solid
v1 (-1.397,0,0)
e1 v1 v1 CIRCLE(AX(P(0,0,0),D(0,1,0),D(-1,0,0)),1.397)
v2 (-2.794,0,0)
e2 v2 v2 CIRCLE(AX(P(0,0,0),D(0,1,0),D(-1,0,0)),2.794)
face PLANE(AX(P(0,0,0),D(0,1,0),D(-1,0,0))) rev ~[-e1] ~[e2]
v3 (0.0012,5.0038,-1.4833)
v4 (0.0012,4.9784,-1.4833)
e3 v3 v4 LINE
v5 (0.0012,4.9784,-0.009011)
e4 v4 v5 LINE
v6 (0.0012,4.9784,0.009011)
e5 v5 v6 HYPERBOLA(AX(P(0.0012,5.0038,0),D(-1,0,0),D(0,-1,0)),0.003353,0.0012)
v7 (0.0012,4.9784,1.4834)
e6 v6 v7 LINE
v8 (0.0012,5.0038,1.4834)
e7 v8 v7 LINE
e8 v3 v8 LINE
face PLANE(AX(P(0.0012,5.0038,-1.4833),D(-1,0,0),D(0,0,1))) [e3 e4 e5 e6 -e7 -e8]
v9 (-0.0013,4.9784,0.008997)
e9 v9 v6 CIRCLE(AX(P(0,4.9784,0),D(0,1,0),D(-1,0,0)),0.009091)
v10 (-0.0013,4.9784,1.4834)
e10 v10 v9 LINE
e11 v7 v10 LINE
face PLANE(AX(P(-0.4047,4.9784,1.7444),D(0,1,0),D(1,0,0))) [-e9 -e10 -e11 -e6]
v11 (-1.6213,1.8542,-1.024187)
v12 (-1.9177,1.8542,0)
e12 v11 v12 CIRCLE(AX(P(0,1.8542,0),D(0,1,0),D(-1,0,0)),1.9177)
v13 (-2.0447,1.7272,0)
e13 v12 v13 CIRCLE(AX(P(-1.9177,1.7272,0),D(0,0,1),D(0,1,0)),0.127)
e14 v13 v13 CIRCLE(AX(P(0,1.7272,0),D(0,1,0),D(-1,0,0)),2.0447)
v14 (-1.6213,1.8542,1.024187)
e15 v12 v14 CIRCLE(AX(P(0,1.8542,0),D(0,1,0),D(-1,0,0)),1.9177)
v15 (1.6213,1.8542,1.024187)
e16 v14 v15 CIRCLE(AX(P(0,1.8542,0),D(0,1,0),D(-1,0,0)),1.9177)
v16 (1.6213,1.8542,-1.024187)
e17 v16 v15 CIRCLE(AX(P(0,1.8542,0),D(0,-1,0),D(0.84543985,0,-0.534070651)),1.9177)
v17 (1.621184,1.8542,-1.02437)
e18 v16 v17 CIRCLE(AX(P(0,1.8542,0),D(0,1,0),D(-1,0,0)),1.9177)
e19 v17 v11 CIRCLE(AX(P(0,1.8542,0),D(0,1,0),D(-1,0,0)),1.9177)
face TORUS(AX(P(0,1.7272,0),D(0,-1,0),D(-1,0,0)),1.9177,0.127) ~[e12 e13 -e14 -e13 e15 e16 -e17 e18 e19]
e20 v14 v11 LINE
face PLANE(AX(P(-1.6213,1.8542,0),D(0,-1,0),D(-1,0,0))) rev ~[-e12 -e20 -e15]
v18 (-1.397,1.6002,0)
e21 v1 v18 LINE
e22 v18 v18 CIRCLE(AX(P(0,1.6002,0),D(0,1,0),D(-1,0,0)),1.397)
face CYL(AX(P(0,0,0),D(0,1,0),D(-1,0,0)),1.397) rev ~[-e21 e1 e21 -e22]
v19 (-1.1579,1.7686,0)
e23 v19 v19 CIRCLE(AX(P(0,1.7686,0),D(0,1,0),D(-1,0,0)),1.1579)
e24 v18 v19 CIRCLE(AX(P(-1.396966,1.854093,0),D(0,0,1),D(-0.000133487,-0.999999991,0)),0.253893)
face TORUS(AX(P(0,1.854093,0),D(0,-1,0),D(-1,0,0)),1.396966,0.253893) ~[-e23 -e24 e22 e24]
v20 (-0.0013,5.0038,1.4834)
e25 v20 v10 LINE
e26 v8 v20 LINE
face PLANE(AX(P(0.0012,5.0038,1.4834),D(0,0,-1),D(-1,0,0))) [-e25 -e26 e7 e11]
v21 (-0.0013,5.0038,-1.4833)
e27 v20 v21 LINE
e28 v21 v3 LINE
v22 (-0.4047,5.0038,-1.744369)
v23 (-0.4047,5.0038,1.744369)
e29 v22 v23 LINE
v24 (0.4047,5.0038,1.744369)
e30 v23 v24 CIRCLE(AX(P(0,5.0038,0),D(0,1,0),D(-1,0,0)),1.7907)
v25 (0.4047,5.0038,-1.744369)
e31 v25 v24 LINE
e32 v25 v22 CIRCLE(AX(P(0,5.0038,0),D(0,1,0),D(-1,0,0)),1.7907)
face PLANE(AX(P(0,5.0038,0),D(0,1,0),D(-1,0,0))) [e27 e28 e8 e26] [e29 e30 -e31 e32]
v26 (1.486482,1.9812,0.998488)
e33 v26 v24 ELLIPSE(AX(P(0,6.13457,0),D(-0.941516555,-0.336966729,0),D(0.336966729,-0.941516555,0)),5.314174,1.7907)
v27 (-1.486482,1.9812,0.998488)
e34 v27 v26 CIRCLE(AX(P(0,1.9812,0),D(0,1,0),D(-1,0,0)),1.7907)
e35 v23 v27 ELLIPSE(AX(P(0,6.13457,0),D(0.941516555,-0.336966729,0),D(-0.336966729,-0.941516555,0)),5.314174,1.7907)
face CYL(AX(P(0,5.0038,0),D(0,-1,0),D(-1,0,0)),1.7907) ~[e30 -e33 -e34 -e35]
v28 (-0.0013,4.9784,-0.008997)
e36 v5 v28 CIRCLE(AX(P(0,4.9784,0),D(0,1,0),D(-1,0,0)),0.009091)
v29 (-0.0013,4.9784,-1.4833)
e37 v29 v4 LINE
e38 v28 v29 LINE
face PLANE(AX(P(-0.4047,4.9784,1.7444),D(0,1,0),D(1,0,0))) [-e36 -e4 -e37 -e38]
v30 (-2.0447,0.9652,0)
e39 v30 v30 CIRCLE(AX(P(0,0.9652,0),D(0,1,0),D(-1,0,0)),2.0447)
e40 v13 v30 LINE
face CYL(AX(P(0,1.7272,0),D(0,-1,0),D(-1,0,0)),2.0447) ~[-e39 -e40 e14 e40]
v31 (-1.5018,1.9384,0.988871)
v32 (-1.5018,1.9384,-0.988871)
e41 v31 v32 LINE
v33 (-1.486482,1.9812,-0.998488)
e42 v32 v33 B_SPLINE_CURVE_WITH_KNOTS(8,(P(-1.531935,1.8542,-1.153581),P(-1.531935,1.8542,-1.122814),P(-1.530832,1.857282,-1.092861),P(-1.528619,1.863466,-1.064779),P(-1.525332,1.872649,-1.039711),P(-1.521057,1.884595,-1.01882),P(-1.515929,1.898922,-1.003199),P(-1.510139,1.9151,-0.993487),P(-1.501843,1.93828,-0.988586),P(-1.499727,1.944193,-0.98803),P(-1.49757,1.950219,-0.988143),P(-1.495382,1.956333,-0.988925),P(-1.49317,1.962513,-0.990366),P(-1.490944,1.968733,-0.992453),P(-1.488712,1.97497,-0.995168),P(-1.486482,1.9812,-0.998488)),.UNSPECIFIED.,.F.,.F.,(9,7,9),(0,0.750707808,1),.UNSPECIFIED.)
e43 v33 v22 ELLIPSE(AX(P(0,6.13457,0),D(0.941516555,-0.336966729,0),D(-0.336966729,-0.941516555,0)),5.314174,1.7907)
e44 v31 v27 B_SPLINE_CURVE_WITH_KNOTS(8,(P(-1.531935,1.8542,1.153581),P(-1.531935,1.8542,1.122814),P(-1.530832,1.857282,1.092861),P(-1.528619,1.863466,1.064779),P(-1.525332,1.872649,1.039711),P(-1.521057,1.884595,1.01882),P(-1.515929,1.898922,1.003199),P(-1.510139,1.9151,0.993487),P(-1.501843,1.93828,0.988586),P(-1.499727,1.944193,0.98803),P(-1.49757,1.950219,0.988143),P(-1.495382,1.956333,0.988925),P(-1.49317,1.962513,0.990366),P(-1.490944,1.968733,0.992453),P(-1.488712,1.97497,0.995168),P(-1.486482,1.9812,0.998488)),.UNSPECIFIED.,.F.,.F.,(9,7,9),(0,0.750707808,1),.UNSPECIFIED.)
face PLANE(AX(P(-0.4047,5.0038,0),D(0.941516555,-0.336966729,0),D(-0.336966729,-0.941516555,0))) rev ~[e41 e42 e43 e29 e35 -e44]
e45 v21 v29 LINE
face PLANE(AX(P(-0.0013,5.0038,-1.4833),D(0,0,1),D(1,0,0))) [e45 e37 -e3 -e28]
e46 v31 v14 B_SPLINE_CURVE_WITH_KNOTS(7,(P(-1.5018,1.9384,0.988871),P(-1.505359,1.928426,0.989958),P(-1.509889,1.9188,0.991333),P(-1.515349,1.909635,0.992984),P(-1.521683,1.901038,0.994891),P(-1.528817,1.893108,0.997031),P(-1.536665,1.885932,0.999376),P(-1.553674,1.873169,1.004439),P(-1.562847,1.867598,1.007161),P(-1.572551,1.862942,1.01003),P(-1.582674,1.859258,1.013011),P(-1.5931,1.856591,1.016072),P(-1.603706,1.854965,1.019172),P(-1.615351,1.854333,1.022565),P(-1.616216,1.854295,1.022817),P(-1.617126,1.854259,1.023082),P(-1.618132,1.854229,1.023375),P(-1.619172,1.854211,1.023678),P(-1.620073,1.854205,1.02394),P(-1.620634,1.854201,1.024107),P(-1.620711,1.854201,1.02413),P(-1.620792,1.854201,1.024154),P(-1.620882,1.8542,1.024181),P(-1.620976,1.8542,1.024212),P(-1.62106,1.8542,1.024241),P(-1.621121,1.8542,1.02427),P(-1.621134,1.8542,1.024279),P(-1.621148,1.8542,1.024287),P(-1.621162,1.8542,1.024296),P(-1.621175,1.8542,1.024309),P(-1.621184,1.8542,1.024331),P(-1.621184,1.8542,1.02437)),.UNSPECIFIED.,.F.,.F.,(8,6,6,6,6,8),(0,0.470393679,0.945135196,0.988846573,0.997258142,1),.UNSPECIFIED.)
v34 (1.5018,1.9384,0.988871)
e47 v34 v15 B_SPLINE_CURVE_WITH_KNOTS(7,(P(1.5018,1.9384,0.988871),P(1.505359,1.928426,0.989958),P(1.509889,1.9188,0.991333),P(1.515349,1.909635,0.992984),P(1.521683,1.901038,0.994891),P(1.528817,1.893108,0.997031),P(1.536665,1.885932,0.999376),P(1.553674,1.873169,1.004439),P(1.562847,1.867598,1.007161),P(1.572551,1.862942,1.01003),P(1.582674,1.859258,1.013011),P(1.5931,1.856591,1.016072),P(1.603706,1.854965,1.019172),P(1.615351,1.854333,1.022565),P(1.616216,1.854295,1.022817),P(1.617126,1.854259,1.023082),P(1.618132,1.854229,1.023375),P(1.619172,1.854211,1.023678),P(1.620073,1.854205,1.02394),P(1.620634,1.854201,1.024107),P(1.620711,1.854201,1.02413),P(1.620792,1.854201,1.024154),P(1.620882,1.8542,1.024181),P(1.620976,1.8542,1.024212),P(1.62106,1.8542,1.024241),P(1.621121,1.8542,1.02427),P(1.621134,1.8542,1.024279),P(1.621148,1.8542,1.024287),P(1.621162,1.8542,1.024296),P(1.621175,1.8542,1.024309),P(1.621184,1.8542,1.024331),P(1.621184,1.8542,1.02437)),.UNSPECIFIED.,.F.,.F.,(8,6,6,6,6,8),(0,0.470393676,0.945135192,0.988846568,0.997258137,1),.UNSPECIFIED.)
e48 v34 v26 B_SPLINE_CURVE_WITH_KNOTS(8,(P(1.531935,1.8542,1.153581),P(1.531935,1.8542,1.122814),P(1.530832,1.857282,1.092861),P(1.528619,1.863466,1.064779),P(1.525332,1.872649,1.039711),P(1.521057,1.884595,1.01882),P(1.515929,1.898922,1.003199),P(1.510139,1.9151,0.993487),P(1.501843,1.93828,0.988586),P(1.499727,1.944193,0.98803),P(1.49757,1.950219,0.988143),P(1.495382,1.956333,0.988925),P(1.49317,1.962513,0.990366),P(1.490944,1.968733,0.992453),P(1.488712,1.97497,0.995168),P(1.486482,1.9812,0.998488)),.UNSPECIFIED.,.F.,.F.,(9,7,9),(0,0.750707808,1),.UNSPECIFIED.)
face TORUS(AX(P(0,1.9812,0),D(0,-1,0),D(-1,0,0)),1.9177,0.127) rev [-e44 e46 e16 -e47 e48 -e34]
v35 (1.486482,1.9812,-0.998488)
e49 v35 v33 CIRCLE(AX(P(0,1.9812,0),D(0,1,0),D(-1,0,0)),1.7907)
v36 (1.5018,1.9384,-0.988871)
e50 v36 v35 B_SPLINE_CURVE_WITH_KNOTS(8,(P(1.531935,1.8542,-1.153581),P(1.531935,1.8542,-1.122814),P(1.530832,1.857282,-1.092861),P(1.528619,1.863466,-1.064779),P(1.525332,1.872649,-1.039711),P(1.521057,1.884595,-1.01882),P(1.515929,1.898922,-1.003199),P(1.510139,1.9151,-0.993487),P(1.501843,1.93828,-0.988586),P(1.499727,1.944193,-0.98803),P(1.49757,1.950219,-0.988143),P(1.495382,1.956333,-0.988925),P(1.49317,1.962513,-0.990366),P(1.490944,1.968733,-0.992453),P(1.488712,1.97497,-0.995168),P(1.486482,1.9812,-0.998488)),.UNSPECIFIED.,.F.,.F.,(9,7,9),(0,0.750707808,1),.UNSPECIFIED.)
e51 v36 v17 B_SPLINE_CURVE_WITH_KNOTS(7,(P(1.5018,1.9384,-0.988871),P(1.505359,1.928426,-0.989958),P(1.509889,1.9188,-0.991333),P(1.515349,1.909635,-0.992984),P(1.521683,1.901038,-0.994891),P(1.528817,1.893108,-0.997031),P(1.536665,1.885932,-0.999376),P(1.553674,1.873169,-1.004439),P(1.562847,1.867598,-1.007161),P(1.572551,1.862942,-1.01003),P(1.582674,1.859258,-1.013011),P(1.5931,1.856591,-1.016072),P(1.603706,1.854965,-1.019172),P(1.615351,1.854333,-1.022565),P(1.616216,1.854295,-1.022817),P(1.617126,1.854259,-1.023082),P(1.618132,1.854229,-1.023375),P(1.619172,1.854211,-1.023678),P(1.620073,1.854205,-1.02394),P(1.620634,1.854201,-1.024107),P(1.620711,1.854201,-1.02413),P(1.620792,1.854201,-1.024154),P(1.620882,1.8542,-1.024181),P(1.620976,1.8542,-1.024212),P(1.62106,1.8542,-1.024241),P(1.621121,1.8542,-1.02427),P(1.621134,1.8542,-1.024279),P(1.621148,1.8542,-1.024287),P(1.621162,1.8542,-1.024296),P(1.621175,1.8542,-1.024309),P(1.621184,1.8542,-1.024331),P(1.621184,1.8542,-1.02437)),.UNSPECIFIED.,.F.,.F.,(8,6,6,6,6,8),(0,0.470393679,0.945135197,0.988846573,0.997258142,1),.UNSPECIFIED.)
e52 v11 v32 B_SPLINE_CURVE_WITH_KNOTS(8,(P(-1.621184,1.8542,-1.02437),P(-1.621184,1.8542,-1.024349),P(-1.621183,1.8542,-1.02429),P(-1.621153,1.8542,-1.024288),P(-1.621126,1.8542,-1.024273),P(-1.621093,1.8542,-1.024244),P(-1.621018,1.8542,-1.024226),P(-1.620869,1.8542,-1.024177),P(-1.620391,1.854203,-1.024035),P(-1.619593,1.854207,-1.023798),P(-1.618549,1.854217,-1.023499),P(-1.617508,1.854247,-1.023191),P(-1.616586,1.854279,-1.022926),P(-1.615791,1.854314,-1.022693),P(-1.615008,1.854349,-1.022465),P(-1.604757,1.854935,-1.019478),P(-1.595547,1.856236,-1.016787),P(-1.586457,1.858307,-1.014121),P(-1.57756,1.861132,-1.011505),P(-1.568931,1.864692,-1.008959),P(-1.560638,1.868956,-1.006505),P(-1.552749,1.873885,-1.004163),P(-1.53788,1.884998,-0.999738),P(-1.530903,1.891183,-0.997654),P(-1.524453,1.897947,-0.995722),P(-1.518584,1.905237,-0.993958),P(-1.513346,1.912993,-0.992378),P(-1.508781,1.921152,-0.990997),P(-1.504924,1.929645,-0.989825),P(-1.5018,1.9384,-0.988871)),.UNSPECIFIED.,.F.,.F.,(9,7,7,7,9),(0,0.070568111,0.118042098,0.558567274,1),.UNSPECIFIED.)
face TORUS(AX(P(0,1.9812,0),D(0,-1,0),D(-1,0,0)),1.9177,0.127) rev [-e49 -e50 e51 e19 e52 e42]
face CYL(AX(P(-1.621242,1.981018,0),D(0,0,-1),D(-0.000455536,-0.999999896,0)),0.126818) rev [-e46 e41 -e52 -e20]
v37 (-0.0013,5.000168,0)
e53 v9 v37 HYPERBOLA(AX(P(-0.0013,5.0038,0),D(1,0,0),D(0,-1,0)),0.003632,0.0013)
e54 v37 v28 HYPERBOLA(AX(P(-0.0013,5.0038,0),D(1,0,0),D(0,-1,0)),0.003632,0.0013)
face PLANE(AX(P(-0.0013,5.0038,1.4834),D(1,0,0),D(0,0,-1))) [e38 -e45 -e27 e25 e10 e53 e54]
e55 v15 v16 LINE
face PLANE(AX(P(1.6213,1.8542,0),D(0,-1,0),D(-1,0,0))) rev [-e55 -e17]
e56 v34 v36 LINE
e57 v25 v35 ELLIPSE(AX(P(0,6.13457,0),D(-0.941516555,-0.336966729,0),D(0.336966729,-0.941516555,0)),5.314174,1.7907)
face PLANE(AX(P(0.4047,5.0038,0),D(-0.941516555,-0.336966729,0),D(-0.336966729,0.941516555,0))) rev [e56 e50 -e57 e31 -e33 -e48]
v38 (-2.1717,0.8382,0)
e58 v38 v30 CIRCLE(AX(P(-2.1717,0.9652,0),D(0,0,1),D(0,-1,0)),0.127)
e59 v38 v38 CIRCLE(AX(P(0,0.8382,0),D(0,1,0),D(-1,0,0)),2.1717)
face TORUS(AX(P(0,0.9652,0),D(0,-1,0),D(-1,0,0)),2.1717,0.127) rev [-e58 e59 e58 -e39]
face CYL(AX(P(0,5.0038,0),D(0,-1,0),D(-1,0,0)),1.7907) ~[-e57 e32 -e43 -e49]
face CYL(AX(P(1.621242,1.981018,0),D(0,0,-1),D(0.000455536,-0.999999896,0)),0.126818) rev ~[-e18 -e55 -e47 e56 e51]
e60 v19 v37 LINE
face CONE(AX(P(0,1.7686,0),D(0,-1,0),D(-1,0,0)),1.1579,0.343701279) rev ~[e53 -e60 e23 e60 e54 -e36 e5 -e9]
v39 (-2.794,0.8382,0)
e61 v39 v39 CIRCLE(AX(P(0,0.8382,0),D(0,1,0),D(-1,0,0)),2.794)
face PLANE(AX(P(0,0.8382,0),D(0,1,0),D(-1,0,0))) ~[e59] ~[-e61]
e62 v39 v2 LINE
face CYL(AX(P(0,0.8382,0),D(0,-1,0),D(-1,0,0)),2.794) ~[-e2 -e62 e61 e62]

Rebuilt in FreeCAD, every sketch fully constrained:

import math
import FreeCAD as App
import Part
import Sketcher
Q = App.Units.Quantity


def add_polygon(sketch, points):
    """Adds a closed chain of lines whose ends are joined by coincident constraints."""
    first, n = sketch.GeometryCount, len(points)
    for a, b in zip(points, points[1:] + points[:1]):
        sketch.addGeometry(Part.LineSegment(App.Vector(*a, 0), App.Vector(*b, 0)), False)
    for i in range(n):
        sketch.addConstraint(Sketcher.Constraint("Coincident", first + i, 2, first + (i + 1) % n, 1))

doc = App.newDocument("Part")
body = doc.addObject("PartDesign::Body", "Body")

# Sketch on XY plane
sketch1 = doc.addObject("Sketcher::SketchObject", "Sketch")
body.addObject(sketch1)
sketch1.AttachmentSupport = (doc.XY_Plane, [""])
sketch1.MapMode = "FlatFace"
sketch1.addGeometry(Part.LineSegment(App.Vector(0, 5, 0), App.Vector(-1.79, 5, 0)), False)
sketch1.addGeometry(Part.LineSegment(App.Vector(-1.79, 5, 0), App.Vector(-1.79, 1.98, 0)), False)
sketch1.addGeometry(Part.ArcOfCircle(Part.Circle(App.Vector(-1.92, 1.98, 0), App.Vector(0, 0, 1), 0.13), math.radians(-90), math.radians(0)), False)
sketch1.addGeometry(Part.ArcOfCircle(Part.Circle(App.Vector(-1.92, 1.73, 0), App.Vector(0, 0, 1), 0.13), math.radians(90), math.radians(180)), False)
sketch1.addGeometry(Part.LineSegment(App.Vector(-2.04, 1.73, 0), App.Vector(-2.04, 0.97, 0)), False)
sketch1.addGeometry(Part.ArcOfCircle(Part.Circle(App.Vector(-2.17, 0.97, 0), App.Vector(0, 0, 1), 0.13), math.radians(-90), math.radians(0)), False)
sketch1.addGeometry(Part.LineSegment(App.Vector(-2.17, 0.84, 0), App.Vector(-2.79, 0.84, 0)), False)
sketch1.addGeometry(Part.LineSegment(App.Vector(-2.79, 0.84, 0), App.Vector(-2.79, 0, 0)), False)
sketch1.addGeometry(Part.LineSegment(App.Vector(-2.79, 0, 0), App.Vector(-1.4, 0, 0)), False)
sketch1.addGeometry(Part.LineSegment(App.Vector(-1.4, 0, 0), App.Vector(-1.4, 1.6, 0)), False)
sketch1.addGeometry(Part.ArcOfCircle(Part.Circle(App.Vector(-1.4, 1.85, 0), App.Vector(0, 0, 1), 0.25), math.radians(-90), math.radians(-20)), False)
sketch1.addGeometry(Part.LineSegment(App.Vector(-1.16, 1.77, 0), App.Vector(0, 5, 0)), False)
sketch1.addConstraint(Sketcher.Constraint("Coincident", 0, 2, 1, 1))
sketch1.addConstraint(Sketcher.Constraint("Tangent", 1, 2, 2, 2))
sketch1.addConstraint(Sketcher.Constraint("Tangent", 2, 1, 3, 1))
sketch1.addConstraint(Sketcher.Constraint("Tangent", 3, 2, 4, 1))
sketch1.addConstraint(Sketcher.Constraint("Tangent", 4, 2, 5, 2))
sketch1.addConstraint(Sketcher.Constraint("Tangent", 5, 1, 6, 1))
sketch1.addConstraint(Sketcher.Constraint("Coincident", 6, 2, 7, 1))
sketch1.addConstraint(Sketcher.Constraint("Coincident", 7, 2, 8, 1))
sketch1.addConstraint(Sketcher.Constraint("Coincident", 8, 2, 9, 1))
sketch1.addConstraint(Sketcher.Constraint("Coincident", 9, 2, 10, 1))
sketch1.addConstraint(Sketcher.Constraint("Tangent", 10, 2, 11, 1))
sketch1.addConstraint(Sketcher.Constraint("Coincident", 11, 2, 0, 1))
sketch1.addConstraint(Sketcher.Constraint("Horizontal", 0))
sketch1.addConstraint(Sketcher.Constraint("Vertical", 1))
sketch1.addConstraint(Sketcher.Constraint("Vertical", 4))
sketch1.addConstraint(Sketcher.Constraint("Horizontal", 6))
sketch1.addConstraint(Sketcher.Constraint("Vertical", 7))
sketch1.addConstraint(Sketcher.Constraint("Horizontal", 8))
sketch1.addConstraint(Sketcher.Constraint("Vertical", 9))
sketch1.addConstraint(Sketcher.Constraint("Equal", 2, 3))
sketch1.addConstraint(Sketcher.Constraint("Equal", 3, 5))
sketch1.addConstraint(Sketcher.Constraint("PointOnObject", 7, 2, -1))
sketch1.addConstraint(Sketcher.Constraint("PointOnObject", 11, 2, -2))
sketch1.addConstraint(Sketcher.Constraint("Horizontal", 10, 3, 2, 1))
sketch1.addConstraint(Sketcher.Constraint("Vertical", 2, 3, 3, 3))
sketch1.addConstraint(Sketcher.Constraint("Vertical", 10, 3, 8, 2))
sketch1.addConstraint(Sketcher.Constraint("Radius", 10, Q("0.01 in")))
sketch1.addConstraint(Sketcher.Constraint("Radius", 2, Q("0.005 in")))
sketch1.addConstraint(Sketcher.Constraint("DistanceY", 7, 2, 7, 1, Q("0.033 in")))
sketch1.addConstraint(Sketcher.Constraint("DistanceX", 6, 2, -1, 1, Q("0.11 in")))
sketch1.addConstraint(Sketcher.Constraint("DistanceY", 5, 3, 2, 3, Q("0.04 in")))
sketch1.addConstraint(Sketcher.Constraint("DistanceY", -1, 1, 0, 2, Q("0.197 in")))
sketch1.addConstraint(Sketcher.Constraint("DistanceX", 8, 1, 8, 2, Q("0.055 in")))
sketch1.addConstraint(Sketcher.Constraint("DistanceX", 0, 2, 0, 1, Q("0.0705 in")))
revolution = doc.addObject("PartDesign::Revolution", "Revolution")
body.addObject(revolution)
revolution.Profile = sketch1
revolution.ReferenceAxis = (sketch1, ["V_Axis"])
revolution.Angle = 360

# Sketch on XY plane
sketch2 = doc.addObject("Sketcher::SketchObject", "Sketch001")
body.addObject(sketch2)
sketch2.AttachmentSupport = (doc.XY_Plane, [""])
sketch2.MapMode = "FlatFace"
sketch2.addGeometry(Part.LineSegment(App.Vector(-1.5, 1.94, 0), App.Vector(-0.4, 5, 0)), False)
sketch2.addGeometry(Part.LineSegment(App.Vector(-0.4, 5, 0), App.Vector(-1.79, 5, 0)), False)
sketch2.addGeometry(Part.LineSegment(App.Vector(-1.79, 5, 0), App.Vector(-1.79, 1.98, 0)), False)
sketch2.addGeometry(Part.ArcOfCircle(Part.Circle(App.Vector(-1.92, 1.98, 0), App.Vector(0, 0, 1), 0.13), math.radians(-90), math.radians(0)), False)
sketch2.addGeometry(Part.LineSegment(App.Vector(-1.92, 1.85, 0), App.Vector(-1.62, 1.85, 0)), False)
sketch2.addGeometry(Part.ArcOfCircle(Part.Circle(App.Vector(-1.62, 1.98, 0), App.Vector(0, 0, 1), 0.13), math.radians(-90), math.radians(-20)), False)
sketch2.addConstraint(Sketcher.Constraint("Coincident", 0, 2, 1, 1))
sketch2.addConstraint(Sketcher.Constraint("Coincident", 1, 2, 2, 1))
sketch2.addConstraint(Sketcher.Constraint("Tangent", 2, 2, 3, 2))
sketch2.addConstraint(Sketcher.Constraint("Tangent", 3, 1, 4, 1))
sketch2.addConstraint(Sketcher.Constraint("Tangent", 4, 2, 5, 1))
sketch2.addConstraint(Sketcher.Constraint("Tangent", 5, 2, 0, 1))
sketch2.addConstraint(Sketcher.Constraint("Horizontal", 1))
sketch2.addConstraint(Sketcher.Constraint("Vertical", 2))
sketch2.addConstraint(Sketcher.Constraint("Horizontal", 4))
sketch2.addConstraint(Sketcher.Constraint("Equal", 3, 5))
sketch2.addConstraint(Sketcher.Constraint("Radius", 3, Q("0.005 in")))
sketch2.addConstraint(Sketcher.Constraint("DistanceY", -1, 1, 0, 2, Q("0.197 in")))
sketch2.addConstraint(Sketcher.Constraint("DistanceY", 2, 2, 2, 1, Q("0.119 in")))
sketch2.addConstraint(Sketcher.Constraint("DistanceX", 1, 2, 1, 1, Q("1.386 mm")))
sketch2.addConstraint(Sketcher.Constraint("DistanceX", 4, 1, 4, 2, Q("0.2964 mm")))
sketch2.addConstraint(Sketcher.Constraint("DistanceX", 3, 3, -1, 1, Q("0.0755 in")))
pocket1 = doc.addObject("PartDesign::Pocket", "Pocket")
body.addObject(pocket1)
pocket1.Profile = sketch2
pocket1.Type = "ThroughAll"
pocket1.Midplane = True
doc.recompute()

mirrored = doc.addObject("PartDesign::Mirrored", "Mirrored")
body.addObject(mirrored)
mirrored.Originals = [pocket1]
mirrored.MirrorPlane = (doc.YZ_Plane, [""])
body.Tip = mirrored

# Sketch on XZ plane
sketch3 = doc.addObject("Sketcher::SketchObject", "Sketch002")
body.addObject(sketch3)
sketch3.AttachmentSupport = (doc.XZ_Plane, [""])
sketch3.MapMode = "FlatFace"
sketch3.AttachmentOffset = App.Placement(App.Vector(0, 0, -0.197 * 25.4), App.Rotation())
add_polygon(sketch3, [(0.0012, -1.4833), (-0.0013, -1.4833), (-0.0013, 1.4834), (0.0012, 1.4834)])  # lines 0-3
sketch3.addConstraint(Sketcher.Constraint("Horizontal", 0))
sketch3.addConstraint(Sketcher.Constraint("Vertical", 1))
sketch3.addConstraint(Sketcher.Constraint("Horizontal", 2))
sketch3.addConstraint(Sketcher.Constraint("Vertical", 3))
sketch3.addConstraint(Sketcher.Constraint("Symmetric", 0, 2, 2, 2, -1, 1))
sketch3.addConstraint(Sketcher.Constraint("DistanceX", 0, 2, 0, 1, Q("0.0001 in")))
sketch3.addConstraint(Sketcher.Constraint("DistanceY", 1, 1, 1, 2, Q("0.1168 in")))
pocket2 = doc.addObject("PartDesign::Pocket", "Pocket001")
body.addObject(pocket2)
pocket2.Profile = sketch3
pocket2.Length = Q("0.001 in")
pocket2.Reversed = True

doc.recompute()
